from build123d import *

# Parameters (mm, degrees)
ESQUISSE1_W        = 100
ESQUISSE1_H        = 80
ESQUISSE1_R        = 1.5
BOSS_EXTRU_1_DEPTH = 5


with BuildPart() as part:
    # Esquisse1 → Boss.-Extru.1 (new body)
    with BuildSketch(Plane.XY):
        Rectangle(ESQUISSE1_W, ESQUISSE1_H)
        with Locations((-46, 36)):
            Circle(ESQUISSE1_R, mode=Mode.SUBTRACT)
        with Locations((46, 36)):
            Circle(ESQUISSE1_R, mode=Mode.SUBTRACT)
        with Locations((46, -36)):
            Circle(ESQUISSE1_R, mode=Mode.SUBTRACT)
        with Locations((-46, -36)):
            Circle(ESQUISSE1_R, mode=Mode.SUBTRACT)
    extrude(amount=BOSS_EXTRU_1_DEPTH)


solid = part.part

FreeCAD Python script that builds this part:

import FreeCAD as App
import Part
import Sketcher

V = App.Vector
Q = App.Units.Quantity


def add_polygon(sketch, points):
    """Adds a closed chain of lines whose ends are joined by coincident constraints."""
    first, n = sketch.GeometryCount, len(points)
    for a, b in zip(points, points[1:] + points[:1]):
        sketch.addGeometry(Part.LineSegment(App.Vector(*a, 0), App.Vector(*b, 0)), False)
    for i in range(n):
        sketch.addConstraint(Sketcher.Constraint("Coincident", first + i, 2, first + (i + 1) % n, 1))

doc = App.newDocument("Part")
body = doc.addObject("PartDesign::Body", "Body")

# Sketch on XY plane
sketch1 = body.newObject("Sketcher::SketchObject", "Sketch")
sketch1.AttachmentSupport = (doc.getObject("XY_Plane"), [""])
sketch1.MapMode = "FlatFace"
add_polygon(sketch1, [(-50, 40), (-50, -40), (50, -40), (50, 40)])  # lines 0-3
sketch1.addGeometry(Part.Circle(V(-46, -36, 0), V(0, 0, 1), 1.5), False)  # 4
sketch1.addGeometry(Part.Circle(V(46, -36, 0), V(0, 0, 1), 1.5), False)  # 5
sketch1.addGeometry(Part.Circle(V(-46, 36, 0), V(0, 0, 1), 1.5), False)  # 6
sketch1.addGeometry(Part.Circle(V(46, 36, 0), V(0, 0, 1), 1.5), False)  # 7
sketch1.addConstraint([
    Sketcher.Constraint("Vertical", 0),
    Sketcher.Constraint("Horizontal", 1),
    Sketcher.Constraint("Vertical", 2),
    Sketcher.Constraint("Horizontal", 3),
    Sketcher.Constraint("Equal", 4, 5),
    Sketcher.Constraint("Equal", 5, 6),
    Sketcher.Constraint("Equal", 6, 7),
    Sketcher.Constraint("Symmetric", 5, 3, 6, 3, -1, 1),
    Sketcher.Constraint("Symmetric", 4, 3, 7, 3, -1, 1),
    Sketcher.Constraint("Symmetric", 0, 2, 2, 2, -1, 1),
    Sketcher.Constraint("Symmetric", 4, 3, 5, 3, -2),
    Sketcher.Constraint("Diameter", 4, Q("3 mm")),
    Sketcher.Constraint("DistanceX", 1, 1, 1, 2, Q("100 mm")),
    Sketcher.Constraint("DistanceY", 0, 2, 0, 1, Q("80 mm")),
    Sketcher.Constraint("DistanceX", 4, 3, -1, 1, Q("46 mm")),
    Sketcher.Constraint("DistanceY", 4, 3, -1, 1, Q("36 mm")),
])
pad1 = body.newObject("PartDesign::Pad", "Pad")
pad1.Profile = sketch1
pad1.Length = 5

doc.recompute()
